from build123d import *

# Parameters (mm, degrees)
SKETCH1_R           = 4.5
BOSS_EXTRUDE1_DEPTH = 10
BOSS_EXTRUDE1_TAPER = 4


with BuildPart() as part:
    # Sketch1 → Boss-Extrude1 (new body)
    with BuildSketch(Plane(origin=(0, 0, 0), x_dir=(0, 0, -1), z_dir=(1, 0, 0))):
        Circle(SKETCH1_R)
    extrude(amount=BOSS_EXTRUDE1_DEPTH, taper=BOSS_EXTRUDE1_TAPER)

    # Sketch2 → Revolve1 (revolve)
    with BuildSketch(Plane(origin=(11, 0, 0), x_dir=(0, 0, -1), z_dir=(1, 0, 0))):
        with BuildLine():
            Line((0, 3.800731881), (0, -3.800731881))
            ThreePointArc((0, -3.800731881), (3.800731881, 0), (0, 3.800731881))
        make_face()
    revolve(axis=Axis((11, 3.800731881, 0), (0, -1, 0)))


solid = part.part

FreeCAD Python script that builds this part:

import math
import FreeCAD as App
import Part
import Sketcher
from FreeCAD import Vector

doc = App.newDocument("Part")
body = doc.addObject("PartDesign::Body", "Body")

# Sketch on YZ plane
sketch1 = body.newObject("Sketcher::SketchObject", "Sketch")
sketch1.AttachmentSupport = (doc.getObject("YZ_Plane"), [""])
sketch1.MapMode = "FlatFace"
sketch1.addGeometry(Part.Circle(Vector(0, 0, 0), Vector(0, 0, 1), 4.5), False)
sketch1.addConstraint([
    Sketcher.Constraint("Coincident", 0, 3, -1, 1),
    Sketcher.Constraint("Diameter", 0, 9.0),
])
pad1 = body.newObject("PartDesign::Pad", "Pad")
pad1.Profile = sketch1
pad1.Length = 10
pad1.TaperAngle = -4

# Sketch on YZ plane
sketch2 = body.newObject("Sketcher::SketchObject", "Sketch001")
sketch2.AttachmentSupport = (doc.getObject("YZ_Plane"), [""])
sketch2.MapMode = "FlatFace"
sketch2.AttachmentOffset = App.Placement(Vector(0, 0, 11), App.Rotation())
sketch2.addGeometry([
    Part.LineSegment(Vector(3.8, 0, 0), Vector(-3.8, 0, 0)),
    Part.ArcOfCircle(Part.Circle(Vector(0, 0, 0), Vector(0, 0, 1), 3.8), math.radians(180), math.radians(360)),
], False)
sketch2.addConstraint([
    Sketcher.Constraint("Coincident", 0, 1, 1, 2),
    Sketcher.Constraint("Coincident", 1, 1, 0, 2),
    Sketcher.Constraint("Horizontal", 0),
    Sketcher.Constraint("Coincident", 1, 3, -1, 1),
    Sketcher.Constraint("PointOnObject", 0, 1, -1),
    Sketcher.Constraint("Radius", 1, 3.800732),
])
revolution = body.newObject("PartDesign::Revolution", "Revolution")
revolution.Profile = sketch2
revolution.ReferenceAxis = (sketch2, ["H_Axis"])
revolution.Angle = 360

doc.recompute()
